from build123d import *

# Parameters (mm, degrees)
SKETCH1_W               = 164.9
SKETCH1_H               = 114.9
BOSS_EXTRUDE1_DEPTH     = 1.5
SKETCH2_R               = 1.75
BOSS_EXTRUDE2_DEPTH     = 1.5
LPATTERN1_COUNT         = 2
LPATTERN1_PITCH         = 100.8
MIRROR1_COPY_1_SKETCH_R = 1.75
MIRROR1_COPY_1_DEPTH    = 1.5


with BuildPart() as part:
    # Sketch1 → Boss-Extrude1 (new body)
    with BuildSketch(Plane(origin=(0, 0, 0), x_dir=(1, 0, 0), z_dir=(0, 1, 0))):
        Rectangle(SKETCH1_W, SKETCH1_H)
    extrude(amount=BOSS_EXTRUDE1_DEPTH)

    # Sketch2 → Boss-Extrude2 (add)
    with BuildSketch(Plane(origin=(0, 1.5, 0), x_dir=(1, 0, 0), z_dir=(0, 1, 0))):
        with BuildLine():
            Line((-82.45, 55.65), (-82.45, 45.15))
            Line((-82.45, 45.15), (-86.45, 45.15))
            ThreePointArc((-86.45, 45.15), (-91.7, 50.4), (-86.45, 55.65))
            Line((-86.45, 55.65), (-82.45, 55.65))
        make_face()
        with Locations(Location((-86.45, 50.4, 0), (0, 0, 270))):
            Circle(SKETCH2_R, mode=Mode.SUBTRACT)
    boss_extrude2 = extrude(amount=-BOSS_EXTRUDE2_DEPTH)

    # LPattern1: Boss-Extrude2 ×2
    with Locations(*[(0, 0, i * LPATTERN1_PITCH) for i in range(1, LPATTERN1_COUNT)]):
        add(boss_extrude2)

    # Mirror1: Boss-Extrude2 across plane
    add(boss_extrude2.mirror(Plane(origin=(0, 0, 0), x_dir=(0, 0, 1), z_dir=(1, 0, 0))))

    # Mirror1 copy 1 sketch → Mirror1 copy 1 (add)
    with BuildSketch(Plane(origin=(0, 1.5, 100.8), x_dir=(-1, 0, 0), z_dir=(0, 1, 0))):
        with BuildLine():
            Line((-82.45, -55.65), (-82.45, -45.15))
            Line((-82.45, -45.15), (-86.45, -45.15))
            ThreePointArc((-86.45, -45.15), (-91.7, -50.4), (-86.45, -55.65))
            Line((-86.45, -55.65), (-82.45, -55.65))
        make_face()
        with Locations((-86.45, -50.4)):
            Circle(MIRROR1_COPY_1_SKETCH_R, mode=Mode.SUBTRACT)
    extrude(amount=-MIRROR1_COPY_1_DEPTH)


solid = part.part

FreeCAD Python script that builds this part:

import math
import FreeCAD as App
import Part
import Sketcher

V = App.Vector
Q = App.Units.Quantity


def add_polygon(sketch, points):
    """Adds a closed chain of lines whose ends are joined by coincident constraints."""
    first, n = sketch.GeometryCount, len(points)
    for a, b in zip(points, points[1:] + points[:1]):
        sketch.addGeometry(Part.LineSegment(App.Vector(*a, 0), App.Vector(*b, 0)), False)
    for i in range(n):
        sketch.addConstraint(Sketcher.Constraint("Coincident", first + i, 2, first + (i + 1) % n, 1))

doc = App.newDocument("Part")
body = doc.addObject("PartDesign::Body", "Body")

# Sketch on XZ plane
sketch1 = body.newObject("Sketcher::SketchObject", "Sketch")
sketch1.AttachmentSupport = (doc.getObject("XZ_Plane"), [""])
sketch1.MapMode = "FlatFace"
add_polygon(sketch1, [(-82.45, -57.45), (-82.45, 57.45), (82.45, 57.45), (82.45, -57.45)])  # lines 0-3
sketch1.addConstraint(Sketcher.Constraint("Vertical", 0))
sketch1.addConstraint(Sketcher.Constraint("Horizontal", 1))
sketch1.addConstraint(Sketcher.Constraint("Vertical", 2))
sketch1.addConstraint(Sketcher.Constraint("Horizontal", 3))
sketch1.addConstraint(Sketcher.Constraint("Symmetric", 0, 2, 2, 2, -1, 1))
sketch1.addConstraint(Sketcher.Constraint("DistanceX", 1, 1, 1, 2, Q("164.9 mm")))
sketch1.addConstraint(Sketcher.Constraint("DistanceY", 0, 1, 0, 2, Q("114.9 mm")))
pad1 = body.newObject("PartDesign::Pad", "Pad")
pad1.Profile = sketch1
pad1.Length = 1.5
pad1.Reversed = True

# Sketch on XZ plane
sketch2 = body.newObject("Sketcher::SketchObject", "Sketch001")
sketch2.AttachmentSupport = (doc.getObject("XZ_Plane"), [""])
sketch2.MapMode = "FlatFace"
sketch2.AttachmentOffset = App.Placement(V(0, 0, -1.5), App.Rotation())
sketch2.addGeometry(Part.LineSegment(V(-82.45, -45.15, 0), V(-82.45, -55.65, 0)), False)
sketch2.addGeometry(Part.LineSegment(V(-82.45, -55.65, 0), V(-86.45, -55.65, 0)), False)
sketch2.addGeometry(Part.ArcOfCircle(Part.Circle(V(-86.45, -50.4, 0), V(0, 0, 1), 5.25), math.radians(90), math.radians(270)), False)
sketch2.addGeometry(Part.LineSegment(V(-86.45, -45.15, 0), V(-82.45, -45.15, 0)), False)
sketch2.addGeometry(Part.Circle(V(-86.45, -50.4, 0), V(0, 0, 1), 1.75), False)
sketch2.addConstraint(Sketcher.Constraint("Coincident", 0, 2, 1, 1))
sketch2.addConstraint(Sketcher.Constraint("Tangent", 1, 2, 2, 2))
sketch2.addConstraint(Sketcher.Constraint("Tangent", 2, 1, 3, 1))
sketch2.addConstraint(Sketcher.Constraint("Coincident", 3, 2, 0, 1))
sketch2.addConstraint(Sketcher.Constraint("Vertical", 0))
sketch2.addConstraint(Sketcher.Constraint("Horizontal", 1))
sketch2.addConstraint(Sketcher.Constraint("Horizontal", 3))
sketch2.addConstraint(Sketcher.Constraint("Coincident", 4, 3, 2, 3))
sketch2.addConstraint(Sketcher.Constraint("Diameter", 4, Q("3.5 mm")))
sketch2.addConstraint(Sketcher.Constraint("DistanceX", 1, 2, 1, 1, Q("4 mm")))
sketch2.addConstraint(Sketcher.Constraint("Radius", 2, Q("5.25 mm")))
sketch2.addConstraint(Sketcher.Constraint("DistanceY", 2, 3, -1, 1, Q("50.4 mm")))
sketch2.addConstraint(Sketcher.Constraint("DistanceX", 2, 3, -1, 1, Q("86.45 mm")))
pad2 = body.newObject("PartDesign::Pad", "Pad001")
pad2.Profile = sketch2
pad2.Length = 1.5
doc.recompute()

linearpattern = body.newObject("PartDesign::LinearPattern", "LinearPattern")
linearpattern.Originals = [pad2]
linearpattern.Direction = (doc.getObject("Z_Axis"), [""])
linearpattern.Mode = "offset"
linearpattern.Offset = 100.8
linearpattern.Occurrences = 2
body.Tip = linearpattern
doc.recompute()

mirrored = body.newObject("PartDesign::Mirrored", "Mirrored")
mirrored.Originals = [pad2]
mirrored.MirrorPlane = (doc.getObject("YZ_Plane"), [""])
body.Tip = mirrored

# Sketch on XZ plane
sketch3 = body.newObject("Sketcher::SketchObject", "Sketch002")
sketch3.AttachmentSupport = (doc.getObject("XZ_Plane"), [""])
sketch3.MapMode = "FlatFace"
sketch3.AttachmentOffset = App.Placement(V(0, 0, -1.5), App.Rotation())
sketch3.addGeometry(Part.LineSegment(V(82.45, 45.15, 0), V(82.45, 55.65, 0)), False)
sketch3.addGeometry(Part.LineSegment(V(82.45, 55.65, 0), V(86.45, 55.65, 0)), False)
sketch3.addGeometry(Part.ArcOfCircle(Part.Circle(V(86.45, 50.4, 0), V(0, 0, 1), 5.25), math.radians(-90), math.radians(90)), False)
sketch3.addGeometry(Part.LineSegment(V(86.45, 45.15, 0), V(82.45, 45.15, 0)), False)
sketch3.addGeometry(Part.Circle(V(86.45, 50.4, 0), V(0, 0, 1), 1.75), False)
sketch3.addConstraint(Sketcher.Constraint("Coincident", 0, 2, 1, 1))
sketch3.addConstraint(Sketcher.Constraint("Tangent", 1, 2, 2, 2))
sketch3.addConstraint(Sketcher.Constraint("Tangent", 2, 1, 3, 1))
sketch3.addConstraint(Sketcher.Constraint("Coincident", 3, 2, 0, 1))
sketch3.addConstraint(Sketcher.Constraint("Vertical", 0))
sketch3.addConstraint(Sketcher.Constraint("Horizontal", 1))
sketch3.addConstraint(Sketcher.Constraint("Horizontal", 3))
sketch3.addConstraint(Sketcher.Constraint("Coincident", 4, 3, 2, 3))
sketch3.addConstraint(Sketcher.Constraint("Diameter", 4, Q("3.5 mm")))
sketch3.addConstraint(Sketcher.Constraint("DistanceX", 1, 1, 1, 2, Q("4 mm")))
sketch3.addConstraint(Sketcher.Constraint("Radius", 2, Q("5.25 mm")))
sketch3.addConstraint(Sketcher.Constraint("DistanceY", -1, 1, 2, 3, Q("50.4 mm")))
sketch3.addConstraint(Sketcher.Constraint("DistanceX", -1, 1, 2, 3, Q("86.45 mm")))
pad3 = body.newObject("PartDesign::Pad", "Pad002")
pad3.Profile = sketch3
pad3.Length = 1.5

doc.recompute()
